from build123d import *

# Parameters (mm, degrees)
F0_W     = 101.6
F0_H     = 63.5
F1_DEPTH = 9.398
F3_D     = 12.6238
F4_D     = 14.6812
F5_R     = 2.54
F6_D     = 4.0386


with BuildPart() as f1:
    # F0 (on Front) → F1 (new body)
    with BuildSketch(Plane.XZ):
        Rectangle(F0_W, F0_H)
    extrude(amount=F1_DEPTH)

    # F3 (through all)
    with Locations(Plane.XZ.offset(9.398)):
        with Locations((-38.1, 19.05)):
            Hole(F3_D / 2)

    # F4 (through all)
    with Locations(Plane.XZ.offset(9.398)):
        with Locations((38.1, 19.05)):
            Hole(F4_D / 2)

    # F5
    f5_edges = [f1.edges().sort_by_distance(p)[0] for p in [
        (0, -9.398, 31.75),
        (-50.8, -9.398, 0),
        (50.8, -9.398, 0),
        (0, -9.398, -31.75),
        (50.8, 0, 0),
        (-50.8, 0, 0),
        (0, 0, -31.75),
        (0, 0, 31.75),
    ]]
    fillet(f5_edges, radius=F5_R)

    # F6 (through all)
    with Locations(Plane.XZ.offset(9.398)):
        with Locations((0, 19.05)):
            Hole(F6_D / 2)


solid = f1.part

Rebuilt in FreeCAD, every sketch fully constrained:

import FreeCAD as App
import Part
import Sketcher

V = App.Vector
Q = App.Units.Quantity


def edges_at(feature, points):
    """Names of the edges that pass closest to the given points."""
    edges = feature.Shape.Edges
    near = lambda p: min(range(len(edges)), key=lambda i: edges[i].distToShape(Part.Vertex(*p))[0])
    return sorted({f"Edge{near(p) + 1}" for p in points})


def add_polygon(sketch, points):
    """Adds a closed chain of lines whose ends are joined by coincident constraints."""
    first, n = sketch.GeometryCount, len(points)
    for a, b in zip(points, points[1:] + points[:1]):
        sketch.addGeometry(Part.LineSegment(App.Vector(*a, 0), App.Vector(*b, 0)), False)
    for i in range(n):
        sketch.addConstraint(Sketcher.Constraint("Coincident", first + i, 2, first + (i + 1) % n, 1))

doc = App.newDocument("Part")
body = doc.addObject("PartDesign::Body", "Body")

sketch1 = body.newObject("Sketcher::SketchObject", "Sketch")
sketch1.AttachmentSupport = (doc.getObject("XZ_Plane"), [""])
sketch1.MapMode = "FlatFace"
add_polygon(sketch1, [(-50.8, 31.75), (-50.8, -31.75), (50.8, -31.75), (50.8, 31.75)])
sketch1.addConstraint([
    Sketcher.Constraint("Vertical", 0),
    Sketcher.Constraint("Horizontal", 1),
    Sketcher.Constraint("Vertical", 2),
    Sketcher.Constraint("Horizontal", 3),
    Sketcher.Constraint("Symmetric", 0, 2, 2, 2, -1, 1),
    Sketcher.Constraint("DistanceX", 1, 1, 1, 2, Q("4 in")),
    Sketcher.Constraint("DistanceY", 0, 2, 0, 1, Q("2.5 in")),
])
pad1 = body.newObject("PartDesign::Pad", "Pad")
pad1.Profile = sketch1
pad1.Length = Q("0.37 in")

sketch2 = body.newObject("Sketcher::SketchObject", "Sketch001")
sketch2.AttachmentSupport = (doc.getObject("XZ_Plane"), [""])
sketch2.MapMode = "FlatFace"
sketch2.AttachmentOffset = App.Placement(V(0, 0, 0.37 * 25.4), App.Rotation())
sketch2.addGeometry(Part.Circle(V(-38.1, 19.05, 0), V(0, 0, 1), 6.3119), False)
sketch2.addConstraint([
    Sketcher.Constraint("Diameter", 0, Q("0.497 in")),
    Sketcher.Constraint("DistanceX", 0, 3, -1, 1, Q("1.5 in")),
    Sketcher.Constraint("DistanceY", -1, 1, 0, 3, Q("0.75 in")),
])
doc.recompute()
hole = body.newObject("PartDesign::Hole", "Hole")
hole.Profile = sketch2
hole.ThreadType = "None"
hole.Diameter = Q("0.497 in")
hole.DepthType = "ThroughAll"

sketch3 = body.newObject("Sketcher::SketchObject", "Sketch002")
sketch3.AttachmentSupport = (doc.getObject("XZ_Plane"), [""])
sketch3.MapMode = "FlatFace"
sketch3.AttachmentOffset = App.Placement(V(0, 0, 0.37 * 25.4), App.Rotation())
sketch3.addGeometry(Part.Circle(V(38.1, 19.05, 0), V(0, 0, 1), 7.3406), False)
sketch3.addConstraint([
    Sketcher.Constraint("Diameter", 0, Q("0.578 in")),
    Sketcher.Constraint("DistanceX", -1, 1, 0, 3, Q("1.5 in")),
    Sketcher.Constraint("DistanceY", -1, 1, 0, 3, Q("0.75 in")),
])
doc.recompute()
hole2 = body.newObject("PartDesign::Hole", "Hole001")
hole2.Profile = sketch3
hole2.ThreadType = "None"
hole2.Diameter = Q("0.578 in")
hole2.DepthType = "ThroughAll"
doc.recompute()

fillet = body.newObject("PartDesign::Fillet", "Fillet")
fillet.Base = (hole2, edges_at(hole2, [
    (0, -9.398, 31.75),
    (-50.8, -9.398, 0),
    (50.8, -9.398, 0),
    (0, -9.398, -31.75),
    (50.8, 0, 0),
    (-50.8, 0, 0),
    (0, 0, -31.75),
    (0, 0, 31.75),
]))
fillet.Radius = Q("0.1 in")

sketch4 = body.newObject("Sketcher::SketchObject", "Sketch003")
sketch4.AttachmentSupport = (doc.getObject("XZ_Plane"), [""])
sketch4.MapMode = "FlatFace"
sketch4.AttachmentOffset = App.Placement(V(0, 0, 0.37 * 25.4), App.Rotation())
sketch4.addGeometry(Part.Circle(V(0, 19.05, 0), V(0, 0, 1), 2.0193), False)
sketch4.addConstraint([
    Sketcher.Constraint("PointOnObject", 0, 3, -2),
    Sketcher.Constraint("Diameter", 0, Q("0.159 in")),
    Sketcher.Constraint("DistanceY", -1, 1, 0, 3, Q("0.75 in")),
])
doc.recompute()
hole3 = body.newObject("PartDesign::Hole", "Hole002")
hole3.Profile = sketch4
hole3.ThreadType = "None"
hole3.Diameter = Q("0.159 in")
hole3.DepthType = "ThroughAll"

doc.recompute()
